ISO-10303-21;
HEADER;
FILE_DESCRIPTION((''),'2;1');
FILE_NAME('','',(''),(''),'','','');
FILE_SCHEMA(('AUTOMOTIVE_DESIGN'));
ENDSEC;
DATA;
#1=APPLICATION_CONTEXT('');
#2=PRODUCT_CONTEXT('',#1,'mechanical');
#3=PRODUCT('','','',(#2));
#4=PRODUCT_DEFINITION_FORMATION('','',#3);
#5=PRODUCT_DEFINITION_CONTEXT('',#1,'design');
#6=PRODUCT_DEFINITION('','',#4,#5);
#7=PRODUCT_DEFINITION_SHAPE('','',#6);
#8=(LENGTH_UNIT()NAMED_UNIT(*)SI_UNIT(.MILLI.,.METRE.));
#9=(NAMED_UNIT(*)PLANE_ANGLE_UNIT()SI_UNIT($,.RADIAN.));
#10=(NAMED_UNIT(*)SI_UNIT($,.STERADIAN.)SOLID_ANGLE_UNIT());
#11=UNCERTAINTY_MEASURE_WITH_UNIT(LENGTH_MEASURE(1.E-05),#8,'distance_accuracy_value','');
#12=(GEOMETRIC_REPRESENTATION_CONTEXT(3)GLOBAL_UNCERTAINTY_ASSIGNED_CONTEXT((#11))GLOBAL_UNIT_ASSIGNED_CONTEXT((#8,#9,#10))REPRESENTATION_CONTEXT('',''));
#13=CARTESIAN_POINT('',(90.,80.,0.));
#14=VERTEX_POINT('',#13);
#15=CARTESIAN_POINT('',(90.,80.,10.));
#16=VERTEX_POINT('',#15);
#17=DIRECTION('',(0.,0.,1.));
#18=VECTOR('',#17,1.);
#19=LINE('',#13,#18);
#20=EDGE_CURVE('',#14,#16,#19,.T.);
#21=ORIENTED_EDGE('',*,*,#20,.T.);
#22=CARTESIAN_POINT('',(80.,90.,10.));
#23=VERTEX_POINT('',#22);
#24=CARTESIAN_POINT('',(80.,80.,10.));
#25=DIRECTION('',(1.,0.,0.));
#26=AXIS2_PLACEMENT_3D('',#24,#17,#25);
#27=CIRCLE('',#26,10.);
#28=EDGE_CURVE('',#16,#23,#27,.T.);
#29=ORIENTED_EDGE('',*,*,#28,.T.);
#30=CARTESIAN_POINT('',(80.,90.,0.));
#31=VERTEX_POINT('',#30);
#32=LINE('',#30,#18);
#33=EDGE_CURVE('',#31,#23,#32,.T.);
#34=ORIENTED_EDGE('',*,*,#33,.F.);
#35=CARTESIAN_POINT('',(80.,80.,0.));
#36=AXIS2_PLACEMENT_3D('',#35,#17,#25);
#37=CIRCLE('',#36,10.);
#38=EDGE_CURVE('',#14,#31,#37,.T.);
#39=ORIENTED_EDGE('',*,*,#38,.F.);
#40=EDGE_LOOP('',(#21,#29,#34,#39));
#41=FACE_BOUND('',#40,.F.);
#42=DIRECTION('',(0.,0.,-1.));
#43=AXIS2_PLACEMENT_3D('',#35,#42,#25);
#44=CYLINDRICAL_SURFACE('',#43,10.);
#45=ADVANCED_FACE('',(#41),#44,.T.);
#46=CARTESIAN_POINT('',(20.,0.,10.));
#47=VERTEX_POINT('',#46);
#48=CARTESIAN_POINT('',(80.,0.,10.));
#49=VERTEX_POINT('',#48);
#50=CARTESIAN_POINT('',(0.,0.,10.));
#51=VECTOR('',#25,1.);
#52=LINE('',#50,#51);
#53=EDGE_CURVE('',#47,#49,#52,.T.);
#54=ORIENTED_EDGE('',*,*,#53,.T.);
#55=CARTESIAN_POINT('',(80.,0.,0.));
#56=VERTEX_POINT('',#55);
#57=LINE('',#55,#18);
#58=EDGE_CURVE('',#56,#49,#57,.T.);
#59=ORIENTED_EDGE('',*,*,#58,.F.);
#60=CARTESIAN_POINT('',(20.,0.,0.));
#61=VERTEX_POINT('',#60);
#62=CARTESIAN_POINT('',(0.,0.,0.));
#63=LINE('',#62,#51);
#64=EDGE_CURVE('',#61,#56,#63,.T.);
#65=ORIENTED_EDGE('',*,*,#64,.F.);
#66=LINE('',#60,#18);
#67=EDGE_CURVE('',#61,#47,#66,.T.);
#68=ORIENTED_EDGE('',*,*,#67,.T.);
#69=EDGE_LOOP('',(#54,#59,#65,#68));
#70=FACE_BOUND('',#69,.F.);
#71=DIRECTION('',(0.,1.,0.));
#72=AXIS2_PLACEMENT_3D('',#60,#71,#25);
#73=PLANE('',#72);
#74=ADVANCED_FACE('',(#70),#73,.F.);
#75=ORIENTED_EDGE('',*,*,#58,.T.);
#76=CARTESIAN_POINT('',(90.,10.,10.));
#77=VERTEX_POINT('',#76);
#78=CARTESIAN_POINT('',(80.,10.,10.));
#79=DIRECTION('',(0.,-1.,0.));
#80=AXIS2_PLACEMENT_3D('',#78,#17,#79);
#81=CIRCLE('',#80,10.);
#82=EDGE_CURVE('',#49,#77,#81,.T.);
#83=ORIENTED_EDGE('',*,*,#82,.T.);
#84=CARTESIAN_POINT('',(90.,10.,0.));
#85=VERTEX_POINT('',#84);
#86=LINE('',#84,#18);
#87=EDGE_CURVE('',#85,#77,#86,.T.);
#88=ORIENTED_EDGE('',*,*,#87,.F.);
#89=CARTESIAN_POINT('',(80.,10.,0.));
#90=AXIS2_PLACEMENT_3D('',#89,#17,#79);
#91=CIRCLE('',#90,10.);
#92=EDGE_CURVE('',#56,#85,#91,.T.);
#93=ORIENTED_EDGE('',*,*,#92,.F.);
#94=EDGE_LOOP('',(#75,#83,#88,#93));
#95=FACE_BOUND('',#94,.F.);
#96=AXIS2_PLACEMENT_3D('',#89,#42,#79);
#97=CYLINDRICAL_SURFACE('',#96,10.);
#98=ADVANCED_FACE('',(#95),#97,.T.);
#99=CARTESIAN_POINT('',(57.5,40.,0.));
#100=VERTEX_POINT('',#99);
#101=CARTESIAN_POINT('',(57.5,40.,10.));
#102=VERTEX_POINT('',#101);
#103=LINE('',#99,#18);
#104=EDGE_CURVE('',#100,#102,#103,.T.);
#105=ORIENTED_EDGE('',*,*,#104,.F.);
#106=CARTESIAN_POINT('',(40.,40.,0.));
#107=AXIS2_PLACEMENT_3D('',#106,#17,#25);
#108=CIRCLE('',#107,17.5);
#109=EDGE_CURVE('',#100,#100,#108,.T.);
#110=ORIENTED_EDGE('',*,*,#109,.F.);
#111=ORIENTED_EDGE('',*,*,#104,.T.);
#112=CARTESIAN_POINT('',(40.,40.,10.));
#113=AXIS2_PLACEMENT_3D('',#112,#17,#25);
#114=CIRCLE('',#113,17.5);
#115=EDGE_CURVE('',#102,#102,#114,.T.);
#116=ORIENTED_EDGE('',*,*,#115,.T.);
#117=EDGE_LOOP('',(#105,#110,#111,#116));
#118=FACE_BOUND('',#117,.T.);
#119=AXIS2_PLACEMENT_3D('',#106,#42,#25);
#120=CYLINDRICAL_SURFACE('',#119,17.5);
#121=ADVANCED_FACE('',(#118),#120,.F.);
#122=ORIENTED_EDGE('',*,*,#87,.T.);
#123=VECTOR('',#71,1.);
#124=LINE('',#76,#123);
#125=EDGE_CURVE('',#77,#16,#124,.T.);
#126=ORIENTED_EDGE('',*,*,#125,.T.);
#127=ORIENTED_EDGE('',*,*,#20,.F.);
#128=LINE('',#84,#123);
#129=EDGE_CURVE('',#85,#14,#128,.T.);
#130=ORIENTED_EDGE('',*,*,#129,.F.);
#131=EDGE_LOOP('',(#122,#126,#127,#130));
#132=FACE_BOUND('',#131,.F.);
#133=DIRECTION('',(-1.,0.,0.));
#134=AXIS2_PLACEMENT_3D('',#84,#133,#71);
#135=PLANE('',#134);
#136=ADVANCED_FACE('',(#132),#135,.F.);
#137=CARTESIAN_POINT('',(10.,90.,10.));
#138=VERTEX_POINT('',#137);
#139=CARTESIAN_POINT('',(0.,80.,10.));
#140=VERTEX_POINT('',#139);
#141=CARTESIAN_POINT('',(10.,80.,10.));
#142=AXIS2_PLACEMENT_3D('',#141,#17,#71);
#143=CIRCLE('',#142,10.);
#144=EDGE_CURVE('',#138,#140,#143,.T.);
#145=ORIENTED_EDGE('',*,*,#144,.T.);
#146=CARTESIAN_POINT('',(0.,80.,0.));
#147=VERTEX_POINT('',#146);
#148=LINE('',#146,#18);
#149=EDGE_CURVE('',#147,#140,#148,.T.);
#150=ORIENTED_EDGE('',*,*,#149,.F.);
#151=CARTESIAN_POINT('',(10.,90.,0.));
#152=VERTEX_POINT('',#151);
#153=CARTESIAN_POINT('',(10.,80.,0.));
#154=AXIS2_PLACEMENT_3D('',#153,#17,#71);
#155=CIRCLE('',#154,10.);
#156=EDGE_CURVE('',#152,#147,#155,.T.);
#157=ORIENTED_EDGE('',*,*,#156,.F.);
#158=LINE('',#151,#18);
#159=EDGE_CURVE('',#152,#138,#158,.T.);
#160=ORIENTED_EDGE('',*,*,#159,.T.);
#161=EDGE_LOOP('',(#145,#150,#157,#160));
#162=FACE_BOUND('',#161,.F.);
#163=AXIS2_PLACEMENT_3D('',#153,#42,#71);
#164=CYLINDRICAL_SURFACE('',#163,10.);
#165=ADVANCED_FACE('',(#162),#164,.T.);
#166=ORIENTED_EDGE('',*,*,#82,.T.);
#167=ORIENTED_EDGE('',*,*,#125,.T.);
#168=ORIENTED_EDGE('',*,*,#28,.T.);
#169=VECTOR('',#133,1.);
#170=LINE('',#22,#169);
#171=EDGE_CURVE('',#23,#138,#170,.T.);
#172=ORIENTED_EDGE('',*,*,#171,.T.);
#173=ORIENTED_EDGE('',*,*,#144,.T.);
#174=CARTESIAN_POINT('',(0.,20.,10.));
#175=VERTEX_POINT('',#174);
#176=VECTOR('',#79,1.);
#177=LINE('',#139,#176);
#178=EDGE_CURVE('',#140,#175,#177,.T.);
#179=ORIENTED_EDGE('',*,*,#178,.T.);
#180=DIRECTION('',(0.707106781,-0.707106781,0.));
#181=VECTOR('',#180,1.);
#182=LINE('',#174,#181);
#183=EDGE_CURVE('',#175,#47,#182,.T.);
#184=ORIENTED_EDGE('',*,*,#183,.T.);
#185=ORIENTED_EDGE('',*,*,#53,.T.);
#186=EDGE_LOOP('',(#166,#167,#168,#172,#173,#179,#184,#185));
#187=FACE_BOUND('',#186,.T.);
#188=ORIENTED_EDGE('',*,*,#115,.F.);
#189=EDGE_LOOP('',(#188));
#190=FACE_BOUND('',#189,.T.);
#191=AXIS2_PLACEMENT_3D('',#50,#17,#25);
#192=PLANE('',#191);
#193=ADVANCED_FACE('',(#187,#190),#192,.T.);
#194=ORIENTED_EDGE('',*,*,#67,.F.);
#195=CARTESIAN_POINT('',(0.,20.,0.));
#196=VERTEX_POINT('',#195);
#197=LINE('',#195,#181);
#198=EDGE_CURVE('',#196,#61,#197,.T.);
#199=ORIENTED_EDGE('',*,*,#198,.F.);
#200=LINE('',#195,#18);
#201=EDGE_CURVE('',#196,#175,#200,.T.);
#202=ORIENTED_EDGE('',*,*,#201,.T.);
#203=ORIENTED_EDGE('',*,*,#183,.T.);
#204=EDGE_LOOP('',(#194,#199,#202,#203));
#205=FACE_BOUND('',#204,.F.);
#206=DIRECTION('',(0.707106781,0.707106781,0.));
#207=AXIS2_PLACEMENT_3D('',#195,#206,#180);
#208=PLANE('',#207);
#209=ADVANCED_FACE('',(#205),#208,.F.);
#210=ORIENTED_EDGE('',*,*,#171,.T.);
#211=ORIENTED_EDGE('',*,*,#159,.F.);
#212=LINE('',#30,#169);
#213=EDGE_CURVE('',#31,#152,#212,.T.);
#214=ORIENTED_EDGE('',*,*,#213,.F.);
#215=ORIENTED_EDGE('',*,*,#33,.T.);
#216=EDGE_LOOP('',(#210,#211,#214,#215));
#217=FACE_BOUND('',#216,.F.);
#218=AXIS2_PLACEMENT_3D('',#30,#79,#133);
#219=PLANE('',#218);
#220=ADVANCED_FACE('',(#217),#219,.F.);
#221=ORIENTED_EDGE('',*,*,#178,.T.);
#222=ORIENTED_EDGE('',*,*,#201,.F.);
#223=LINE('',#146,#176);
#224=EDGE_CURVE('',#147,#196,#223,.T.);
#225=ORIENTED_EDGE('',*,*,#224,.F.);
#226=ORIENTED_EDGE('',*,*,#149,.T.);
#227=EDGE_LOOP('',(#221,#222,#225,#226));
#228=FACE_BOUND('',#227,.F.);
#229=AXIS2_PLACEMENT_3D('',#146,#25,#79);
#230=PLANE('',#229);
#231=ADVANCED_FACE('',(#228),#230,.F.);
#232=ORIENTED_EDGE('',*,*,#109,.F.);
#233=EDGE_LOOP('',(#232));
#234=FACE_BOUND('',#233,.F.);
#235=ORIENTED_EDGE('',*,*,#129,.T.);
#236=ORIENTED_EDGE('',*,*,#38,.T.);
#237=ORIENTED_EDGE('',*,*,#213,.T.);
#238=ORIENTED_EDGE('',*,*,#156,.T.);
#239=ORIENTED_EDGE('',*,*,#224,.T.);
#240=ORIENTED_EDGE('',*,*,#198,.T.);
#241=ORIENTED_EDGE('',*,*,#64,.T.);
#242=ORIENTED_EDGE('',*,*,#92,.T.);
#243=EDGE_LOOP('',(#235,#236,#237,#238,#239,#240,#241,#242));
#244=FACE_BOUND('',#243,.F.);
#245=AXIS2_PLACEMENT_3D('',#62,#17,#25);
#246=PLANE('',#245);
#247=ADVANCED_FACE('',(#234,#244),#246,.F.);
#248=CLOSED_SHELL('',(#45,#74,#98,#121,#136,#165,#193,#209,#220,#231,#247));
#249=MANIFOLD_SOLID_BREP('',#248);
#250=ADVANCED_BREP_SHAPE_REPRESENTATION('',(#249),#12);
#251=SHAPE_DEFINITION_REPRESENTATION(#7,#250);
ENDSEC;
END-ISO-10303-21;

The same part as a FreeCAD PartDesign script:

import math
import FreeCAD as App
import Part
import Sketcher
Q = App.Units.Quantity

doc = App.newDocument("Part")
body = doc.addObject("PartDesign::Body", "Body")

sketch1 = body.newObject("Sketcher::SketchObject", "Sketch")
sketch1.AttachmentSupport = (doc.getObject("XY_Plane"), [""])
sketch1.MapMode = "FlatFace"
sketch1.addGeometry(Part.LineSegment(App.Vector(0, 20, 0), App.Vector(20, 0, 0)), False)
sketch1.addGeometry(Part.LineSegment(App.Vector(20, 0, 0), App.Vector(80, 0, 0)), False)
sketch1.addGeometry(Part.ArcOfCircle(Part.Circle(App.Vector(80, 10, 0), App.Vector(0, 0, 1), 10), math.radians(-90), math.radians(0)), False)
sketch1.addGeometry(Part.LineSegment(App.Vector(90, 10, 0), App.Vector(90, 80, 0)), False)
sketch1.addGeometry(Part.ArcOfCircle(Part.Circle(App.Vector(80, 80, 0), App.Vector(0, 0, 1), 10), math.radians(0), math.radians(90)), False)
sketch1.addGeometry(Part.LineSegment(App.Vector(80, 90, 0), App.Vector(10, 90, 0)), False)
sketch1.addGeometry(Part.ArcOfCircle(Part.Circle(App.Vector(10, 80, 0), App.Vector(0, 0, 1), 10), math.radians(90), math.radians(180)), False)
sketch1.addGeometry(Part.LineSegment(App.Vector(0, 80, 0), App.Vector(0, 20, 0)), False)
sketch1.addGeometry(Part.Circle(App.Vector(40, 40, 0), App.Vector(0, 0, 1), 18), False)
sketch1.addConstraint(Sketcher.Constraint("Coincident", 0, 2, 1, 1))
sketch1.addConstraint(Sketcher.Constraint("Tangent", 1, 2, 2, 1))
sketch1.addConstraint(Sketcher.Constraint("Tangent", 2, 2, 3, 1))
sketch1.addConstraint(Sketcher.Constraint("Tangent", 3, 2, 4, 1))
sketch1.addConstraint(Sketcher.Constraint("Tangent", 4, 2, 5, 1))
sketch1.addConstraint(Sketcher.Constraint("Tangent", 5, 2, 6, 1))
sketch1.addConstraint(Sketcher.Constraint("Tangent", 6, 2, 7, 1))
sketch1.addConstraint(Sketcher.Constraint("Coincident", 7, 2, 0, 1))
sketch1.addConstraint(Sketcher.Constraint("Horizontal", 1))
sketch1.addConstraint(Sketcher.Constraint("Vertical", 3))
sketch1.addConstraint(Sketcher.Constraint("Horizontal", 5))
sketch1.addConstraint(Sketcher.Constraint("Vertical", 7))
sketch1.addConstraint(Sketcher.Constraint("Equal", 2, 4))
sketch1.addConstraint(Sketcher.Constraint("Equal", 4, 6))
sketch1.addConstraint(Sketcher.Constraint("PointOnObject", 0, 2, -1))
sketch1.addConstraint(Sketcher.Constraint("PointOnObject", 6, 2, -2))
sketch1.addConstraint(Sketcher.Constraint("Equal", 5, 3))
sketch1.addConstraint(Sketcher.Constraint("Equal", 1, 7))
sketch1.addConstraint(Sketcher.Constraint("Diameter", 8, Q("35 mm")))
sketch1.addConstraint(Sketcher.Constraint("Radius", 2, Q("10 mm")))
sketch1.addConstraint(Sketcher.Constraint("DistanceX", -1, 1, 8, 3, Q("40 mm")))
sketch1.addConstraint(Sketcher.Constraint("DistanceY", -1, 1, 8, 3, Q("40 mm")))
sketch1.addConstraint(Sketcher.Constraint("DistanceX", -1, 1, 0, 2, Q("20 mm")))
sketch1.addConstraint(Sketcher.Constraint("DistanceX", -1, 1, 2, 2, Q("90 mm")))
pad1 = body.newObject("PartDesign::Pad", "Pad")
pad1.Profile = sketch1
pad1.Length = 10

doc.recompute()
